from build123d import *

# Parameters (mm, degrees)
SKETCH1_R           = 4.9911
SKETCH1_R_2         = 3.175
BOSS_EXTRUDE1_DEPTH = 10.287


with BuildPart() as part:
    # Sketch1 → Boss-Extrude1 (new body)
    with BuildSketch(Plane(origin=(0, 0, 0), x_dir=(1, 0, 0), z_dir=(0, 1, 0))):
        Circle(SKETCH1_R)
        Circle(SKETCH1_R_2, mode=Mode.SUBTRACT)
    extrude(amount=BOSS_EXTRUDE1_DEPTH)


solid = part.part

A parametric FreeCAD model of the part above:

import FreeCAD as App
import Part
import Sketcher
Q = App.Units.Quantity

doc = App.newDocument("Part")
params = doc.addObject("Spreadsheet::Sheet", "Params")
for row, (alias, value) in enumerate([
    ("sketch1_diameter", "0.25 in"),
    ("sketch1_diameter2", "0.393 in"),
    ("pad1_length", "0.405 in"),
], start=1):
    params.set(f"A{row}", alias)
    params.set(f"B{row}", "=" + value)
    params.setAlias(f"B{row}", alias)

body = doc.addObject("PartDesign::Body", "Body")

sketch1 = doc.addObject("Sketcher::SketchObject", "Sketch")
body.addObject(sketch1)
sketch1.AttachmentSupport = (doc.XZ_Plane, [""])
sketch1.MapMode = "FlatFace"
sketch1.addGeometry([
    Part.Circle(App.Vector(0, 0, 0), App.Vector(0, 0, 1), 4.9911),
    Part.Circle(App.Vector(0, 0, 0), App.Vector(0, 0, 1), 3.175),
], False)
sketch1.addConstraint([
    Sketcher.Constraint("Coincident", 0, 3, -1, 1),
    Sketcher.Constraint("Coincident", 1, 3, -1, 1),
    Sketcher.Constraint("Diameter", 1, Q("0.25 in")),
    Sketcher.Constraint("Diameter", 0, Q("0.393 in")),
])
sketch1.setExpression("Constraints[2]", "Params.sketch1_diameter")
sketch1.setExpression("Constraints[3]", "Params.sketch1_diameter2")
pad1 = doc.addObject("PartDesign::Pad", "Pad")
body.addObject(pad1)
pad1.Profile = sketch1
pad1.setExpression("Length", "Params.pad1_length")
pad1.Reversed = True

doc.recompute()
